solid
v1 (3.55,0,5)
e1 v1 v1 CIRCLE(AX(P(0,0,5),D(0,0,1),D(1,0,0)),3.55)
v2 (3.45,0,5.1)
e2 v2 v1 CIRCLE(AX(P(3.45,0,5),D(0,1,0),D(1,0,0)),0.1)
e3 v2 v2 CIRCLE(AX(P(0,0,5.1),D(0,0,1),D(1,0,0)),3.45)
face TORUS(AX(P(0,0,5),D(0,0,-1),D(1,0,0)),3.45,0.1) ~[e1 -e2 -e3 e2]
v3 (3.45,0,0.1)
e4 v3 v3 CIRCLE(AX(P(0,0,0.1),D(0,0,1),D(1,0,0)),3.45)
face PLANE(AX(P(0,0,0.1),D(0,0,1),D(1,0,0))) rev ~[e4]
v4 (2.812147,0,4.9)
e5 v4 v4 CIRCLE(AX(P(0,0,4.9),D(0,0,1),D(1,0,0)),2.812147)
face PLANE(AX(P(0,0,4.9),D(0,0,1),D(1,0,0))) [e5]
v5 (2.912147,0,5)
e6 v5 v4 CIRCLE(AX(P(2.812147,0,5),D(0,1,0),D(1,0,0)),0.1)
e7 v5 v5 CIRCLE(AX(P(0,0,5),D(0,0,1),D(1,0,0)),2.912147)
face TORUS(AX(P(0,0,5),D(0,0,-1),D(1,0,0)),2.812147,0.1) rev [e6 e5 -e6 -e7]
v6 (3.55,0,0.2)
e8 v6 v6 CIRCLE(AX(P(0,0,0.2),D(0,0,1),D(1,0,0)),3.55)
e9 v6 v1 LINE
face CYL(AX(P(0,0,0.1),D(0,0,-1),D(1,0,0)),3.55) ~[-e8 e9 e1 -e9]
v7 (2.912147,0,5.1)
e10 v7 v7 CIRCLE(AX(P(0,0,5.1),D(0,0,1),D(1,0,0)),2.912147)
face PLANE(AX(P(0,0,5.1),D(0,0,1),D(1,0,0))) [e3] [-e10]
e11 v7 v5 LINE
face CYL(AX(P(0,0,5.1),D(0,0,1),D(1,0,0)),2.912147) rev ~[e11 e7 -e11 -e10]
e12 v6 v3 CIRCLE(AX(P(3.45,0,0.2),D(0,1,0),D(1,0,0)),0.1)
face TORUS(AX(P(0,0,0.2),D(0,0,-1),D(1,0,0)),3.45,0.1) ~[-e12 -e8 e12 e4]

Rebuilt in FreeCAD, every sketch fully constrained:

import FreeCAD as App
import Part
import Sketcher
from FreeCAD import Vector
Q = App.Units.Quantity


def edges_at(feature, points):
    """Names of the edges that pass closest to the given points."""
    edges = feature.Shape.Edges
    near = lambda p: min(range(len(edges)), key=lambda i: edges[i].distToShape(Part.Vertex(*p))[0])
    return sorted({f"Edge{near(p) + 1}" for p in points})

doc = App.newDocument("Part")
params = doc.addObject("Spreadsheet::Sheet", "Params")
for row, (alias, value) in enumerate([
    ("sketch1_diameter", "7.1 mm"),
    ("pad1_length", "5 mm"),
    ("pocket1_length", "0.2 mm"),
    ("fillet_radius", "0.1 mm"),
    ("fillet2_radius", "0.1 mm"),
], start=1):
    params.set(f"A{row}", alias)
    params.set(f"B{row}", "=" + value)
    params.setAlias(f"B{row}", alias)

body = doc.addObject("PartDesign::Body", "Body")

# Sketch on XY plane
sketch1 = doc.addObject("Sketcher::SketchObject", "Sketch")
body.addObject(sketch1)
sketch1.AttachmentSupport = (doc.XY_Plane, [""])
sketch1.MapMode = "FlatFace"
sketch1.AttachmentOffset = App.Placement(Vector(0, 0, 0.1), App.Rotation())
sketch1.addGeometry(Part.Circle(Vector(0, 0, 0), Vector(0, 0, 1), 3.5), False)
sketch1.addConstraint(Sketcher.Constraint("Coincident", 0, 3, -1, 1))
sketch1.addConstraint(Sketcher.Constraint("Diameter", 0, Q("7.1 mm")))
sketch1.setExpression("Constraints[1]", "Params.sketch1_diameter")
pad1 = doc.addObject("PartDesign::Pad", "Pad")
body.addObject(pad1)
pad1.Profile = sketch1
pad1.setExpression("Length", "Params.pad1_length")

# Sketch on XY plane
sketch2 = doc.addObject("Sketcher::SketchObject", "Sketch001")
body.addObject(sketch2)
sketch2.AttachmentSupport = (doc.XY_Plane, [""])
sketch2.MapMode = "FlatFace"
sketch2.AttachmentOffset = App.Placement(Vector(0, 0, 5.1), App.Rotation())
sketch2.addGeometry(Part.Circle(Vector(0, 0, 0), Vector(0, 0, 1), 2.9), False)
sketch2.addConstraint(Sketcher.Constraint("Coincident", 0, 3, -1, 1))
sketch2.addConstraint(Sketcher.Constraint("Diameter", 0, Q("5.824294 mm")))
pocket1 = doc.addObject("PartDesign::Pocket", "Pocket")
body.addObject(pocket1)
pocket1.Profile = sketch2
pocket1.setExpression("Length", "Params.pocket1_length")
doc.recompute()

fillet = doc.addObject("PartDesign::Fillet", "Fillet")
body.addObject(fillet)
fillet.Base = (pocket1, edges_at(pocket1, [(-2.912, 0, 4.9)]))
fillet.setExpression("Radius", "Params.fillet_radius")
doc.recompute()

fillet2 = doc.addObject("PartDesign::Fillet", "Fillet001")
body.addObject(fillet2)
fillet2.Base = (fillet, edges_at(fillet, [(-3.55, 0, 0.1), (-3.55, 0, 5.1)]))
fillet2.setExpression("Radius", "Params.fillet2_radius")

doc.recompute()
